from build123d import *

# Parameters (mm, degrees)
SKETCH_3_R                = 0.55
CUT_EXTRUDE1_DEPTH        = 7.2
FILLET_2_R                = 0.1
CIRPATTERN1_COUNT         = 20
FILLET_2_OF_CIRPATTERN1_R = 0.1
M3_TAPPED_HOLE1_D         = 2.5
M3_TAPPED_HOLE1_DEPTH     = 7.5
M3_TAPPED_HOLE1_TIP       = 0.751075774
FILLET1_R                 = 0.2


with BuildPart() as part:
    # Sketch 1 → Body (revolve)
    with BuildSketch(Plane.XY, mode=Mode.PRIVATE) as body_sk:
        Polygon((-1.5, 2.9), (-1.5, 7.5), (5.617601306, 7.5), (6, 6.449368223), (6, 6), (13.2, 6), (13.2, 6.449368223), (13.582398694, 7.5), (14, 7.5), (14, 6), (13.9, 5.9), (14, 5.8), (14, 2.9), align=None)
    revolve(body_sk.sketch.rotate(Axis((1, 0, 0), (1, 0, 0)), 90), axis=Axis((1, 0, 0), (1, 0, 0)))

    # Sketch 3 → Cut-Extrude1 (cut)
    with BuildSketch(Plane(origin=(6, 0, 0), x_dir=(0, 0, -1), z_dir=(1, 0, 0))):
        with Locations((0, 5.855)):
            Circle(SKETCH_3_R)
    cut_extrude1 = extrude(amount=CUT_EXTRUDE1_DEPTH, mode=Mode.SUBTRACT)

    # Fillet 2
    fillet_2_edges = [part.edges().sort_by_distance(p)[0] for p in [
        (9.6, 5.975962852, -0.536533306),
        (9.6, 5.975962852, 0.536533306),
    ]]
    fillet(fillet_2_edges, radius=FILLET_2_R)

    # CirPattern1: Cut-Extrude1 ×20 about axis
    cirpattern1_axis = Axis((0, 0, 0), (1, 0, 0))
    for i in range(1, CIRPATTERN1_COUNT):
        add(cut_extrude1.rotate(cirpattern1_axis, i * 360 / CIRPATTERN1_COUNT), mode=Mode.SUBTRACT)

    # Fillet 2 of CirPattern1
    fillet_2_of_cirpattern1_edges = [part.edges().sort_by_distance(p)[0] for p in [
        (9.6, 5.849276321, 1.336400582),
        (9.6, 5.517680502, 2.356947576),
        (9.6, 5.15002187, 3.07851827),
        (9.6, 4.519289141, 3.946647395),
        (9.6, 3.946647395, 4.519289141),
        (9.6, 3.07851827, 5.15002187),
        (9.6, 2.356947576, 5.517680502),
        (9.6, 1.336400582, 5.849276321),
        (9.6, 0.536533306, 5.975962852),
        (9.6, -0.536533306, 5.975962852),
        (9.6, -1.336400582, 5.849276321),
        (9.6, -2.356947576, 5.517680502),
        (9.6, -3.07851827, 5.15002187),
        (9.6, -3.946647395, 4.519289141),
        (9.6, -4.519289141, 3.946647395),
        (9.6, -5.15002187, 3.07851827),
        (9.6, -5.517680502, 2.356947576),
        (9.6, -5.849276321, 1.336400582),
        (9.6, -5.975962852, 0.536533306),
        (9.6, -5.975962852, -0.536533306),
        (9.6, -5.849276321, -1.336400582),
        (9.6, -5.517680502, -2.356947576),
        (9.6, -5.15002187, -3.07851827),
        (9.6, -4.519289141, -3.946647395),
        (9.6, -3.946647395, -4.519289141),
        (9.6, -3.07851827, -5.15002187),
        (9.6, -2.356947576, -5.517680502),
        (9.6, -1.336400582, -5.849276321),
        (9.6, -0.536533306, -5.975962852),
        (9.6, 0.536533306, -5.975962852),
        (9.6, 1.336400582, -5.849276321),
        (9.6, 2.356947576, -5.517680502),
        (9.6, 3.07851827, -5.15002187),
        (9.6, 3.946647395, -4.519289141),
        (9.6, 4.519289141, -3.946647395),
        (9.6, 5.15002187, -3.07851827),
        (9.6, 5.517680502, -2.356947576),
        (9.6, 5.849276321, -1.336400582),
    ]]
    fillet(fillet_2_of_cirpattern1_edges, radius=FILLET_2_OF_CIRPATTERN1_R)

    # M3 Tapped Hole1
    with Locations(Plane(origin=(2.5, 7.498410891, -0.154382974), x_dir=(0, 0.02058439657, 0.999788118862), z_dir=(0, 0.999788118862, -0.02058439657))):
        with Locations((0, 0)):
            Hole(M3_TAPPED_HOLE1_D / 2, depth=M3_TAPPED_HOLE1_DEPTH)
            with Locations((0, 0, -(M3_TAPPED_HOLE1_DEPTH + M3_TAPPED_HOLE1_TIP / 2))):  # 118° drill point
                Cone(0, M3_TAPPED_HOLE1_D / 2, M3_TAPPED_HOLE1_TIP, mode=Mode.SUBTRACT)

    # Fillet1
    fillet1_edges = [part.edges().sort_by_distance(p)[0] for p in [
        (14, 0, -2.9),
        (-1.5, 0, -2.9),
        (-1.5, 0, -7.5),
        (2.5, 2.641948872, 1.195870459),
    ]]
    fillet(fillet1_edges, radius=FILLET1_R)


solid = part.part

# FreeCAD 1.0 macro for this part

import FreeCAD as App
import Part
import Sketcher
from FreeCAD import Vector
Q = App.Units.Quantity


def edges_at(feature, points):
    """Names of the edges that pass closest to the given points."""
    edges = feature.Shape.Edges
    near = lambda p: min(range(len(edges)), key=lambda i: edges[i].distToShape(Part.Vertex(*p))[0])
    return sorted({f"Edge{near(p) + 1}" for p in points})

doc = App.newDocument("Part")
body = doc.addObject("PartDesign::Body", "Body")

# Sketch on XY plane
sketch1 = body.newObject("Sketcher::SketchObject", "Sketch")
sketch1.AttachmentSupport = (doc.getObject("XY_Plane"), [""])
sketch1.MapMode = "FlatFace"
sketch1.addGeometry(Part.LineSegment(Vector(-1.5, 7.5, 0), Vector(-1.5, 2.9, 0)), False)
sketch1.addGeometry(Part.LineSegment(Vector(-1.5, 2.9, 0), Vector(14, 2.9, 0)), False)
sketch1.addGeometry(Part.LineSegment(Vector(14, 2.9, 0), Vector(14, 5.8, 0)), False)
sketch1.addGeometry(Part.LineSegment(Vector(14, 5.8, 0), Vector(13.9, 5.9, 0)), False)
sketch1.addGeometry(Part.LineSegment(Vector(13.9, 5.9, 0), Vector(14, 6, 0)), False)
sketch1.addGeometry(Part.LineSegment(Vector(14, 6, 0), Vector(14, 7.5, 0)), False)
sketch1.addGeometry(Part.LineSegment(Vector(14, 7.5, 0), Vector(13.58, 7.5, 0)), False)
sketch1.addGeometry(Part.LineSegment(Vector(13.58, 7.5, 0), Vector(13.2, 6.45, 0)), False)
sketch1.addGeometry(Part.LineSegment(Vector(13.2, 6.45, 0), Vector(13.2, 6, 0)), False)
sketch1.addGeometry(Part.LineSegment(Vector(13.2, 6, 0), Vector(6, 6, 0)), False)
sketch1.addGeometry(Part.LineSegment(Vector(6, 6, 0), Vector(6, 6.45, 0)), False)
sketch1.addGeometry(Part.LineSegment(Vector(6, 6.45, 0), Vector(5.62, 7.5, 0)), False)
sketch1.addGeometry(Part.LineSegment(Vector(5.62, 7.5, 0), Vector(-1.5, 7.5, 0)), False)
sketch1.addConstraint(Sketcher.Constraint("Coincident", 0, 2, 1, 1))
sketch1.addConstraint(Sketcher.Constraint("Coincident", 1, 2, 2, 1))
sketch1.addConstraint(Sketcher.Constraint("Coincident", 2, 2, 3, 1))
sketch1.addConstraint(Sketcher.Constraint("Coincident", 3, 2, 4, 1))
sketch1.addConstraint(Sketcher.Constraint("Coincident", 4, 2, 5, 1))
sketch1.addConstraint(Sketcher.Constraint("Coincident", 5, 2, 6, 1))
sketch1.addConstraint(Sketcher.Constraint("Coincident", 6, 2, 7, 1))
sketch1.addConstraint(Sketcher.Constraint("Coincident", 7, 2, 8, 1))
sketch1.addConstraint(Sketcher.Constraint("Coincident", 8, 2, 9, 1))
sketch1.addConstraint(Sketcher.Constraint("Coincident", 9, 2, 10, 1))
sketch1.addConstraint(Sketcher.Constraint("Coincident", 10, 2, 11, 1))
sketch1.addConstraint(Sketcher.Constraint("Coincident", 11, 2, 12, 1))
sketch1.addConstraint(Sketcher.Constraint("Coincident", 12, 2, 0, 1))
sketch1.addConstraint(Sketcher.Constraint("Vertical", 0))
sketch1.addConstraint(Sketcher.Constraint("Horizontal", 1))
sketch1.addConstraint(Sketcher.Constraint("Vertical", 2))
sketch1.addConstraint(Sketcher.Constraint("Vertical", 5))
sketch1.addConstraint(Sketcher.Constraint("Horizontal", 6))
sketch1.addConstraint(Sketcher.Constraint("Vertical", 8))
sketch1.addConstraint(Sketcher.Constraint("Horizontal", 9))
sketch1.addConstraint(Sketcher.Constraint("Vertical", 10))
sketch1.addConstraint(Sketcher.Constraint("Horizontal", 12))
sketch1.addConstraint(Sketcher.Constraint("Perpendicular", 3, 4))
sketch1.addConstraint(Sketcher.Constraint("Horizontal", 4, 2, 8, 2))
sketch1.addConstraint(Sketcher.Constraint("Horizontal", 7, 2, 10, 2))
sketch1.addConstraint(Sketcher.Constraint("Horizontal", 6, 2, 11, 2))
sketch1.addConstraint(Sketcher.Constraint("Vertical", 2, 2, 4, 2))
sketch1.addConstraint(Sketcher.Constraint("Equal", 3, 4))
sketch1.addConstraint(Sketcher.Constraint("Equal", 7, 11))
sketch1.addConstraint(Sketcher.Constraint("Angle", 7, Q("-110 deg")))
sketch1.addConstraint(Sketcher.Constraint("DistanceX", 1, 1, 1, 2, 15.5))
sketch1.addConstraint(Sketcher.Constraint("DistanceX", 9, 2, 9, 1, 7.2))
sketch1.addConstraint(Sketcher.Constraint("DistanceY", 0, 2, 0, 1, 4.6))
sketch1.addConstraint(Sketcher.Constraint("DistanceY", 2, 1, 2, 2, 2.9))
sketch1.addConstraint(Sketcher.Constraint("DistanceY", 5, 1, 5, 2, 1.5))
sketch1.addConstraint(Sketcher.Constraint("DistanceX", -1, 1, 1, 2, 14.0))
sketch1.addConstraint(Sketcher.Constraint("DistanceY", -1, 1, 4, 2, 6.0))
sketch1.addConstraint(Sketcher.Constraint("DistanceX", -1, 1, 9, 2, 6.0))
sketch1.addConstraint(Sketcher.Constraint("DistanceX", 6, 2, 6, 1, 0.417601))
revolution = body.newObject("PartDesign::Revolution", "Revolution")
revolution.Profile = sketch1
revolution.ReferenceAxis = (sketch1, ["H_Axis"])
revolution.Angle = 360

# Sketch on YZ plane
sketch2 = body.newObject("Sketcher::SketchObject", "Sketch001")
sketch2.AttachmentSupport = (doc.getObject("YZ_Plane"), [""])
sketch2.MapMode = "FlatFace"
sketch2.AttachmentOffset = App.Placement(Vector(0, 0, 6), App.Rotation())
sketch2.addGeometry(Part.Circle(Vector(5.9, 0, 0), Vector(0, 0, 1), 0.6), False)
sketch2.addConstraint(Sketcher.Constraint("PointOnObject", 0, 3, -1))
sketch2.addConstraint(Sketcher.Constraint("Diameter", 0, 1.1))
sketch2.addConstraint(Sketcher.Constraint("DistanceX", -1, 1, 0, 3, 5.855))
pocket1 = body.newObject("PartDesign::Pocket", "Pocket")
pocket1.Profile = sketch2
pocket1.Length = 7.2
pocket1.Reversed = True
doc.recompute()

fillet = body.newObject("PartDesign::Fillet", "Fillet")
fillet.Base = (pocket1, edges_at(pocket1, [(9.6, 5.976, -0.537), (9.6, 5.976, 0.537)]))
fillet.Radius = 0.1
doc.recompute()

polarpattern = body.newObject("PartDesign::PolarPattern", "PolarPattern")
polarpattern.Originals = [pocket1]
polarpattern.Axis = (doc.getObject("X_Axis"), [""])
polarpattern.Angle = 360
polarpattern.Occurrences = 20
body.Tip = polarpattern
doc.recompute()

fillet2 = body.newObject("PartDesign::Fillet", "Fillet001")
fillet2.Base = (polarpattern, edges_at(polarpattern, [
    (9.6, 5.849, 1.336),
    (9.6, 5.518, 2.357),
    (9.6, 5.15, 3.079),
    (9.6, 4.519, 3.947),
    (9.6, 3.947, 4.519),
    (9.6, 3.079, 5.15),
    (9.6, 2.357, 5.518),
    (9.6, 1.336, 5.849),
    (9.6, 0.537, 5.976),
    (9.6, -0.537, 5.976),
    (9.6, -1.336, 5.849),
    (9.6, -2.357, 5.518),
    (9.6, -3.079, 5.15),
    (9.6, -3.947, 4.519),
    (9.6, -4.519, 3.947),
    (9.6, -5.15, 3.079),
    (9.6, -5.518, 2.357),
    (9.6, -5.849, 1.336),
    (9.6, -5.976, 0.537),
    (9.6, -5.976, -0.537),
    (9.6, -5.849, -1.336),
    (9.6, -5.518, -2.357),
    (9.6, -5.15, -3.079),
    (9.6, -4.519, -3.947),
    (9.6, -3.947, -4.519),
    (9.6, -3.079, -5.15),
    (9.6, -2.357, -5.518),
    (9.6, -1.336, -5.849),
    (9.6, -0.537, -5.976),
    (9.6, 0.537, -5.976),
    (9.6, 1.336, -5.849),
    (9.6, 2.357, -5.518),
    (9.6, 3.079, -5.15),
    (9.6, 3.947, -4.519),
    (9.6, 4.519, -3.947),
    (9.6, 5.15, -3.079),
    (9.6, 5.518, -2.357),
    (9.6, 5.849, -1.336),
]))
fillet2.Radius = 0.1

# Sketch on an angled plane
sketch3 = body.newObject("Sketcher::SketchObject", "Sketch002")
sketch3.Placement = App.Placement(Vector(0, 7.498411, -0.154383), App.Rotation(Vector(0, 0.020584397, 0.999788119), Vector(1, 0, 0), Vector(0, 0.999788119, -0.020584397), "ZXY"))
sketch3.addGeometry(Part.Circle(Vector(0, 2.5, 0), Vector(0, 0, 1), 1.2), False)
sketch3.addConstraint(Sketcher.Constraint("PointOnObject", 0, 3, -2))
sketch3.addConstraint(Sketcher.Constraint("Diameter", 0, 2.5))
sketch3.addConstraint(Sketcher.Constraint("DistanceY", -1, 1, 0, 3, 2.5))
doc.recompute()
hole = body.newObject("PartDesign::Hole", "Hole")
hole.Profile = sketch3
hole.ThreadType = "None"
hole.Diameter = 2.5
hole.DepthType = "Dimension"
hole.Depth = 7.5
hole.DrillPoint = "Angled"
hole.DrillPointAngle = 118
doc.recompute()

fillet3 = body.newObject("PartDesign::Fillet", "Fillet002")
fillet3.Base = (hole, edges_at(hole, [
    (14, 0, -2.9),
    (-1.5, 0, -2.9),
    (-1.5, 0, -7.5),
    (2.5, 2.642, 1.196),
]))
fillet3.Radius = 0.2

doc.recompute()
